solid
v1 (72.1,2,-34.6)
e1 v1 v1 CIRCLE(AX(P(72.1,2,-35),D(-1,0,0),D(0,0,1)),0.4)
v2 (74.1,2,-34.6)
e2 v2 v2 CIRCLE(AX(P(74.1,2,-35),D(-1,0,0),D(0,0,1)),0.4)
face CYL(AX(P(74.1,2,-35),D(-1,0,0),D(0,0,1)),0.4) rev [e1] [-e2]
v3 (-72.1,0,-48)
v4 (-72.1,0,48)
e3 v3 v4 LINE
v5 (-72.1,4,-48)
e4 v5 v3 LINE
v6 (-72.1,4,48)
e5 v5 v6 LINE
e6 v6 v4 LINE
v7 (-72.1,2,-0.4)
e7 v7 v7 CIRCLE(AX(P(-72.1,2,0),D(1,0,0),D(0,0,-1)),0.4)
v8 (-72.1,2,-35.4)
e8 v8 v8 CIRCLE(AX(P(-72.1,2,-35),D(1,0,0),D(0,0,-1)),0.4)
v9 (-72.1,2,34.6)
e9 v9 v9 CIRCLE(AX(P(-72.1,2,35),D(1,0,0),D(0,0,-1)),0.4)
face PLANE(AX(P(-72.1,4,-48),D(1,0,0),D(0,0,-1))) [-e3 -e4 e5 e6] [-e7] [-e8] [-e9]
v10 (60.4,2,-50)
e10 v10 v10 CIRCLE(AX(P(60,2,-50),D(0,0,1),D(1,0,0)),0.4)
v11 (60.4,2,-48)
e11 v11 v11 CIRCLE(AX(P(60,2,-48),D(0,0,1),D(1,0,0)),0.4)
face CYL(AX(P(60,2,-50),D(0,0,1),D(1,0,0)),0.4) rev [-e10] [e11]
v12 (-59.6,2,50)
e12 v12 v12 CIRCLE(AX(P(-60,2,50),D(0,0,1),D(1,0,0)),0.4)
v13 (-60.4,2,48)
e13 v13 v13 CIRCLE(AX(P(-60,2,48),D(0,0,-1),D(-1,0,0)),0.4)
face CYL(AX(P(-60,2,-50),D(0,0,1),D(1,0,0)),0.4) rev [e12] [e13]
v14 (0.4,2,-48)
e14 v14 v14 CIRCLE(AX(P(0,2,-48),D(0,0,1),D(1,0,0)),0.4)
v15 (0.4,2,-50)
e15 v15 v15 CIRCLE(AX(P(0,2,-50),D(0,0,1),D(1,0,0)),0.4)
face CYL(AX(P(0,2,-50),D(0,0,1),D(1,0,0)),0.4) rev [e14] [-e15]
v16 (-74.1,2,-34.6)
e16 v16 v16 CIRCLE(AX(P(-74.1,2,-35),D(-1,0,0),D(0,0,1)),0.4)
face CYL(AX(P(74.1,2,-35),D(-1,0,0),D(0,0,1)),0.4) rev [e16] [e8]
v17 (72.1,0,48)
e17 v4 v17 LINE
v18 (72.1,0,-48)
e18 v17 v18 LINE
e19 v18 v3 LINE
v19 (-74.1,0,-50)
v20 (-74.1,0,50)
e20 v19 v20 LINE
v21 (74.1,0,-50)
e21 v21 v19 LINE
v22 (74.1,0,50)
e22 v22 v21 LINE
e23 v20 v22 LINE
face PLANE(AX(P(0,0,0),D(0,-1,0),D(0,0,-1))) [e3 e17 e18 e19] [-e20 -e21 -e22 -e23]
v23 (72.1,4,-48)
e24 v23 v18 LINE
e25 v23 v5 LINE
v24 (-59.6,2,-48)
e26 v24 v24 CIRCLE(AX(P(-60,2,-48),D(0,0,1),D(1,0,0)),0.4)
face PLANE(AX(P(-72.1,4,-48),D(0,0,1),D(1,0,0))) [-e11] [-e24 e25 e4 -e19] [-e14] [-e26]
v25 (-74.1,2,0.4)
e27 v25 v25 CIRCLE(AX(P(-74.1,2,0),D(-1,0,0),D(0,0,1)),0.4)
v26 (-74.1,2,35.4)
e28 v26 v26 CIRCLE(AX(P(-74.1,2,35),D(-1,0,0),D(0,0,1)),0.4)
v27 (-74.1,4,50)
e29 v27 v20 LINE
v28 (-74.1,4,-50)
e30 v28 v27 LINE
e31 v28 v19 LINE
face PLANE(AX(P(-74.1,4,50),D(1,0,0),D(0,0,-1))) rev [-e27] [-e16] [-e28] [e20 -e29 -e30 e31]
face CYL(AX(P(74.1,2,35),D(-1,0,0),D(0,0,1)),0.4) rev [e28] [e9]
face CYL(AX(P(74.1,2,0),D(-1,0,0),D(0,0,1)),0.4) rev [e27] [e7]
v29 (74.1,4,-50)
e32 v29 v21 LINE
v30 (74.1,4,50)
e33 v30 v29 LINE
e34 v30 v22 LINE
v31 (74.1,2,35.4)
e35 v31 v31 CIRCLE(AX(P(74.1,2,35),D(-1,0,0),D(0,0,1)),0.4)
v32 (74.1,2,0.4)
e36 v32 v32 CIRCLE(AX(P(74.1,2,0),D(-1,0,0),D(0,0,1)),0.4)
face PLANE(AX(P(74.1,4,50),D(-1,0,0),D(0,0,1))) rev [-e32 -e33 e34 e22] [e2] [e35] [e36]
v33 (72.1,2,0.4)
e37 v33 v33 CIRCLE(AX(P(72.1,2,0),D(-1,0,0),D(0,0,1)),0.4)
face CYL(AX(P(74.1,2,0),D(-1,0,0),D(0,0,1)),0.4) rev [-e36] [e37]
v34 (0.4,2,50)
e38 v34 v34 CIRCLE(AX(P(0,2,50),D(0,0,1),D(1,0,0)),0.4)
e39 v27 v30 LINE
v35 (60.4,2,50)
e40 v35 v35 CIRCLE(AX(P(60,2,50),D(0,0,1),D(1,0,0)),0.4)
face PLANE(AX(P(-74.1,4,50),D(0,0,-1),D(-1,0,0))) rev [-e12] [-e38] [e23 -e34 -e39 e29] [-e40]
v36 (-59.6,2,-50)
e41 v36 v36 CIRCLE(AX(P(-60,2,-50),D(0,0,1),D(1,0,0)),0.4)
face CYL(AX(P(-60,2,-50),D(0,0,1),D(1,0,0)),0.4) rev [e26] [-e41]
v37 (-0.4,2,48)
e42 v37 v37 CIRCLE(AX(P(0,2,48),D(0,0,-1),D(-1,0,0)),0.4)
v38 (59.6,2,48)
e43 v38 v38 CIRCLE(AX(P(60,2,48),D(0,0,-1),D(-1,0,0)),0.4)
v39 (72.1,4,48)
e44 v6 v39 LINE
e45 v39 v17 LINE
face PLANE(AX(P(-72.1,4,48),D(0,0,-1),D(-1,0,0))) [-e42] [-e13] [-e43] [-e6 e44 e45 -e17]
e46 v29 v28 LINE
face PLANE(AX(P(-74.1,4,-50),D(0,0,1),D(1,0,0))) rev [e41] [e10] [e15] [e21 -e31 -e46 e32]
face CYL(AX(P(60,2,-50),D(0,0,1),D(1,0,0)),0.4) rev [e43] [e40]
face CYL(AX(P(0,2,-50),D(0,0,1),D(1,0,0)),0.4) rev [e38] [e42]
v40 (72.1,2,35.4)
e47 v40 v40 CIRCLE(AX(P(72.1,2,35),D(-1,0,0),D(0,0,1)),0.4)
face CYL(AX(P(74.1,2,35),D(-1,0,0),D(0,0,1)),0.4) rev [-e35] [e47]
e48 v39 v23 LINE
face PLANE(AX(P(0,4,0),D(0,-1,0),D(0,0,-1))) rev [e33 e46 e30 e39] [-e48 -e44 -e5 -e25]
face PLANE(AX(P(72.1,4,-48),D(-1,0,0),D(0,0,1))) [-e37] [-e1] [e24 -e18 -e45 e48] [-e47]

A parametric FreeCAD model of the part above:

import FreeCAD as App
import Part
import Sketcher

V = App.Vector

doc = App.newDocument("Part")
body = doc.addObject("PartDesign::Body", "Body")

sketch1 = body.newObject("Sketcher::SketchObject", "Sketch")
sketch1.AttachmentSupport = (doc.getObject("XZ_Plane"), [""])
sketch1.MapMode = "FlatFace"
sketch1.addGeometry([
    Part.LineSegment(V(-74.1, -50, 0), V(-74.1, 50, 0)),
    Part.LineSegment(V(-74.1, 50, 0), V(74.1, 50, 0)),
    Part.LineSegment(V(74.1, 50, 0), V(74.1, -50, 0)),
    Part.LineSegment(V(74.1, -50, 0), V(-74.1, -50, 0)),
    Part.LineSegment(V(72.1, 48, 0), V(-72.1, 48, 0)),
    Part.LineSegment(V(-72.1, 48, 0), V(-72.1, -48, 0)),
    Part.LineSegment(V(-72.1, -48, 0), V(72.1, -48, 0)),
    Part.LineSegment(V(72.1, -48, 0), V(72.1, 48, 0)),
], False)
sketch1.addConstraint([
    Sketcher.Constraint("Coincident", 0, 2, 1, 1),
    Sketcher.Constraint("Coincident", 1, 2, 2, 1),
    Sketcher.Constraint("Coincident", 2, 2, 3, 1),
    Sketcher.Constraint("Coincident", 3, 2, 0, 1),
    Sketcher.Constraint("Coincident", 4, 2, 5, 1),
    Sketcher.Constraint("Coincident", 5, 2, 6, 1),
    Sketcher.Constraint("Coincident", 6, 2, 7, 1),
    Sketcher.Constraint("Coincident", 7, 2, 4, 1),
    Sketcher.Constraint("Vertical", 0),
    Sketcher.Constraint("Horizontal", 1),
    Sketcher.Constraint("Vertical", 2),
    Sketcher.Constraint("Horizontal", 3),
    Sketcher.Constraint("Horizontal", 4),
    Sketcher.Constraint("Vertical", 5),
    Sketcher.Constraint("Horizontal", 6),
    Sketcher.Constraint("Vertical", 7),
    Sketcher.Constraint("Symmetric", 0, 2, 2, 2, -1, 1),
    Sketcher.Constraint("Symmetric", 4, 2, 6, 2, -1, 1),
    Sketcher.Constraint("DistanceY", 0, 1, 0, 2, 100.0),
    Sketcher.Constraint("DistanceY", 5, 2, 5, 1, 96.0),
    Sketcher.Constraint("DistanceX", 1, 1, 1, 2, 148.2),
    Sketcher.Constraint("DistanceX", 4, 2, 4, 1, 144.2),
])
pad1 = body.newObject("PartDesign::Pad", "Pad")
pad1.Profile = sketch1
pad1.Length = 4
pad1.Reversed = True

sketch2 = body.newObject("Sketcher::SketchObject", "Sketch001")
sketch2.AttachmentSupport = (doc.getObject("XY_Plane"), [""])
sketch2.MapMode = "FlatFace"
sketch2.AttachmentOffset = App.Placement(V(0, 0, 50), App.Rotation())
sketch2.addGeometry([
    Part.Circle(V(0, 2, 0), V(0, 0, 1), 0.4),
    Part.Circle(V(-60, 2, 0), V(0, 0, 1), 0.4),
    Part.Circle(V(60, 2, 0), V(0, 0, 1), 0.4),
], False)
sketch2.addConstraint([
    Sketcher.Constraint("Equal", 0, 1),
    Sketcher.Constraint("Equal", 1, 2),
    Sketcher.Constraint("Symmetric", 1, 3, 2, 3, -2),
    Sketcher.Constraint("PointOnObject", 0, 3, -2),
    Sketcher.Constraint("Horizontal", 0, 3, 1, 3),
    Sketcher.Constraint("Diameter", 0, 0.8),
    Sketcher.Constraint("DistanceY", -1, 1, 0, 3, 2.0),
    Sketcher.Constraint("DistanceX", 1, 3, -1, 1, 60.0),
])
pocket1 = body.newObject("PartDesign::Pocket", "Pocket")
pocket1.Profile = sketch2
pocket1.Type = "ThroughAll"

sketch3 = body.newObject("Sketcher::SketchObject", "Sketch002")
sketch3.AttachmentSupport = (doc.getObject("YZ_Plane"), [""])
sketch3.MapMode = "FlatFace"
sketch3.AttachmentOffset = App.Placement(V(0, 0, -74.1), App.Rotation())
sketch3.addGeometry([
    Part.Circle(V(2, 0, 0), V(0, 0, 1), 0.4),
    Part.Circle(V(2, 35, 0), V(0, 0, 1), 0.4),
    Part.Circle(V(2, -35, 0), V(0, 0, 1), 0.4),
], False)
sketch3.addConstraint([
    Sketcher.Constraint("Equal", 0, 1),
    Sketcher.Constraint("Equal", 1, 2),
    Sketcher.Constraint("Symmetric", 1, 3, 2, 3, -1),
    Sketcher.Constraint("PointOnObject", 0, 3, -1),
    Sketcher.Constraint("Vertical", 0, 3, 1, 3),
    Sketcher.Constraint("Diameter", 0, 0.8),
    Sketcher.Constraint("DistanceX", -1, 1, 0, 3, 2.0),
    Sketcher.Constraint("DistanceY", -1, 1, 1, 3, 35.0),
])
pocket2 = body.newObject("PartDesign::Pocket", "Pocket001")
pocket2.Profile = sketch3
pocket2.Type = "ThroughAll"
pocket2.Reversed = True

doc.recompute()
